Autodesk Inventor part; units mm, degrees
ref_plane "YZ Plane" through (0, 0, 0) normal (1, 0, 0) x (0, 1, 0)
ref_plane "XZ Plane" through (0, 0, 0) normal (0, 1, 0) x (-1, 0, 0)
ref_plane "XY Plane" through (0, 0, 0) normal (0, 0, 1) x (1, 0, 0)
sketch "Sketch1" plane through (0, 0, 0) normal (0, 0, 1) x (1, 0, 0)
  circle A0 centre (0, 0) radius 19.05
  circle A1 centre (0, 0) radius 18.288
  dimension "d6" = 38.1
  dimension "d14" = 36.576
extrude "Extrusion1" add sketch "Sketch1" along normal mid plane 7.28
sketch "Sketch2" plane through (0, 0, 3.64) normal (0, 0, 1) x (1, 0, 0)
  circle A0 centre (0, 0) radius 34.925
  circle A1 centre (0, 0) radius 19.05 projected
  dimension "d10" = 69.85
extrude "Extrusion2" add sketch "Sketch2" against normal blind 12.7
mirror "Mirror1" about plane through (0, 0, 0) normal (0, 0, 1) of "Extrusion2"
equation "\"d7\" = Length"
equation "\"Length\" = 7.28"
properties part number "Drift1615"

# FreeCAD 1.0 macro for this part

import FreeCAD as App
import Part
import Sketcher

V = App.Vector
Q = App.Units.Quantity

doc = App.newDocument("Part")
body = doc.addObject("PartDesign::Body", "Body")

# Sketch on XY plane
sketch1 = doc.addObject("Sketcher::SketchObject", "Sketch")
body.addObject(sketch1)
sketch1.AttachmentSupport = (doc.XY_Plane, [""])
sketch1.MapMode = "FlatFace"
sketch1.addGeometry([
    Part.Circle(V(0, 0, 0), V(0, 0, 1), 19),
    Part.Circle(V(0, 0, 0), V(0, 0, 1), 18),
], False)
sketch1.addConstraint([
    Sketcher.Constraint("Coincident", 0, 3, -1, 1),
    Sketcher.Constraint("Coincident", 1, 3, -1, 1),
    Sketcher.Constraint("Diameter", 0, Q("1.5 in")),
    Sketcher.Constraint("Diameter", 1, Q("1.44 in")),
])
pad1 = doc.addObject("PartDesign::Pad", "Pad")
body.addObject(pad1)
pad1.Profile = sketch1
pad1.Length = 7.28
pad1.Midplane = True

# Sketch on XY plane
sketch2 = doc.addObject("Sketcher::SketchObject", "Sketch001")
body.addObject(sketch2)
sketch2.AttachmentSupport = (doc.XY_Plane, [""])
sketch2.MapMode = "FlatFace"
sketch2.AttachmentOffset = App.Placement(V(0, 0, 0.1433071 * 25.4), App.Rotation())
sketch2.addGeometry([
    Part.Circle(V(0, 0, 0), V(0, 0, 1), 35),
    Part.Circle(V(0, 0, 0), V(0, 0, 1), 19),
], False)
sketch2.addConstraint([
    Sketcher.Constraint("Coincident", 0, 3, -1, 1),
    Sketcher.Constraint("Coincident", 1, 3, -1, 1),
    Sketcher.Constraint("Diameter", 0, Q("2.75 in")),
    Sketcher.Constraint("Diameter", 1, Q("1.5 in")),
])
pad2 = doc.addObject("PartDesign::Pad", "Pad001")
body.addObject(pad2)
pad2.Profile = sketch2
pad2.Length = Q("0.5 in")
pad2.Reversed = True
doc.recompute()

mirrored = doc.addObject("PartDesign::Mirrored", "Mirrored")
body.addObject(mirrored)
mirrored.Originals = [pad2]
mirrored.MirrorPlane = (doc.XY_Plane, [""])
body.Tip = mirrored

doc.recompute()
